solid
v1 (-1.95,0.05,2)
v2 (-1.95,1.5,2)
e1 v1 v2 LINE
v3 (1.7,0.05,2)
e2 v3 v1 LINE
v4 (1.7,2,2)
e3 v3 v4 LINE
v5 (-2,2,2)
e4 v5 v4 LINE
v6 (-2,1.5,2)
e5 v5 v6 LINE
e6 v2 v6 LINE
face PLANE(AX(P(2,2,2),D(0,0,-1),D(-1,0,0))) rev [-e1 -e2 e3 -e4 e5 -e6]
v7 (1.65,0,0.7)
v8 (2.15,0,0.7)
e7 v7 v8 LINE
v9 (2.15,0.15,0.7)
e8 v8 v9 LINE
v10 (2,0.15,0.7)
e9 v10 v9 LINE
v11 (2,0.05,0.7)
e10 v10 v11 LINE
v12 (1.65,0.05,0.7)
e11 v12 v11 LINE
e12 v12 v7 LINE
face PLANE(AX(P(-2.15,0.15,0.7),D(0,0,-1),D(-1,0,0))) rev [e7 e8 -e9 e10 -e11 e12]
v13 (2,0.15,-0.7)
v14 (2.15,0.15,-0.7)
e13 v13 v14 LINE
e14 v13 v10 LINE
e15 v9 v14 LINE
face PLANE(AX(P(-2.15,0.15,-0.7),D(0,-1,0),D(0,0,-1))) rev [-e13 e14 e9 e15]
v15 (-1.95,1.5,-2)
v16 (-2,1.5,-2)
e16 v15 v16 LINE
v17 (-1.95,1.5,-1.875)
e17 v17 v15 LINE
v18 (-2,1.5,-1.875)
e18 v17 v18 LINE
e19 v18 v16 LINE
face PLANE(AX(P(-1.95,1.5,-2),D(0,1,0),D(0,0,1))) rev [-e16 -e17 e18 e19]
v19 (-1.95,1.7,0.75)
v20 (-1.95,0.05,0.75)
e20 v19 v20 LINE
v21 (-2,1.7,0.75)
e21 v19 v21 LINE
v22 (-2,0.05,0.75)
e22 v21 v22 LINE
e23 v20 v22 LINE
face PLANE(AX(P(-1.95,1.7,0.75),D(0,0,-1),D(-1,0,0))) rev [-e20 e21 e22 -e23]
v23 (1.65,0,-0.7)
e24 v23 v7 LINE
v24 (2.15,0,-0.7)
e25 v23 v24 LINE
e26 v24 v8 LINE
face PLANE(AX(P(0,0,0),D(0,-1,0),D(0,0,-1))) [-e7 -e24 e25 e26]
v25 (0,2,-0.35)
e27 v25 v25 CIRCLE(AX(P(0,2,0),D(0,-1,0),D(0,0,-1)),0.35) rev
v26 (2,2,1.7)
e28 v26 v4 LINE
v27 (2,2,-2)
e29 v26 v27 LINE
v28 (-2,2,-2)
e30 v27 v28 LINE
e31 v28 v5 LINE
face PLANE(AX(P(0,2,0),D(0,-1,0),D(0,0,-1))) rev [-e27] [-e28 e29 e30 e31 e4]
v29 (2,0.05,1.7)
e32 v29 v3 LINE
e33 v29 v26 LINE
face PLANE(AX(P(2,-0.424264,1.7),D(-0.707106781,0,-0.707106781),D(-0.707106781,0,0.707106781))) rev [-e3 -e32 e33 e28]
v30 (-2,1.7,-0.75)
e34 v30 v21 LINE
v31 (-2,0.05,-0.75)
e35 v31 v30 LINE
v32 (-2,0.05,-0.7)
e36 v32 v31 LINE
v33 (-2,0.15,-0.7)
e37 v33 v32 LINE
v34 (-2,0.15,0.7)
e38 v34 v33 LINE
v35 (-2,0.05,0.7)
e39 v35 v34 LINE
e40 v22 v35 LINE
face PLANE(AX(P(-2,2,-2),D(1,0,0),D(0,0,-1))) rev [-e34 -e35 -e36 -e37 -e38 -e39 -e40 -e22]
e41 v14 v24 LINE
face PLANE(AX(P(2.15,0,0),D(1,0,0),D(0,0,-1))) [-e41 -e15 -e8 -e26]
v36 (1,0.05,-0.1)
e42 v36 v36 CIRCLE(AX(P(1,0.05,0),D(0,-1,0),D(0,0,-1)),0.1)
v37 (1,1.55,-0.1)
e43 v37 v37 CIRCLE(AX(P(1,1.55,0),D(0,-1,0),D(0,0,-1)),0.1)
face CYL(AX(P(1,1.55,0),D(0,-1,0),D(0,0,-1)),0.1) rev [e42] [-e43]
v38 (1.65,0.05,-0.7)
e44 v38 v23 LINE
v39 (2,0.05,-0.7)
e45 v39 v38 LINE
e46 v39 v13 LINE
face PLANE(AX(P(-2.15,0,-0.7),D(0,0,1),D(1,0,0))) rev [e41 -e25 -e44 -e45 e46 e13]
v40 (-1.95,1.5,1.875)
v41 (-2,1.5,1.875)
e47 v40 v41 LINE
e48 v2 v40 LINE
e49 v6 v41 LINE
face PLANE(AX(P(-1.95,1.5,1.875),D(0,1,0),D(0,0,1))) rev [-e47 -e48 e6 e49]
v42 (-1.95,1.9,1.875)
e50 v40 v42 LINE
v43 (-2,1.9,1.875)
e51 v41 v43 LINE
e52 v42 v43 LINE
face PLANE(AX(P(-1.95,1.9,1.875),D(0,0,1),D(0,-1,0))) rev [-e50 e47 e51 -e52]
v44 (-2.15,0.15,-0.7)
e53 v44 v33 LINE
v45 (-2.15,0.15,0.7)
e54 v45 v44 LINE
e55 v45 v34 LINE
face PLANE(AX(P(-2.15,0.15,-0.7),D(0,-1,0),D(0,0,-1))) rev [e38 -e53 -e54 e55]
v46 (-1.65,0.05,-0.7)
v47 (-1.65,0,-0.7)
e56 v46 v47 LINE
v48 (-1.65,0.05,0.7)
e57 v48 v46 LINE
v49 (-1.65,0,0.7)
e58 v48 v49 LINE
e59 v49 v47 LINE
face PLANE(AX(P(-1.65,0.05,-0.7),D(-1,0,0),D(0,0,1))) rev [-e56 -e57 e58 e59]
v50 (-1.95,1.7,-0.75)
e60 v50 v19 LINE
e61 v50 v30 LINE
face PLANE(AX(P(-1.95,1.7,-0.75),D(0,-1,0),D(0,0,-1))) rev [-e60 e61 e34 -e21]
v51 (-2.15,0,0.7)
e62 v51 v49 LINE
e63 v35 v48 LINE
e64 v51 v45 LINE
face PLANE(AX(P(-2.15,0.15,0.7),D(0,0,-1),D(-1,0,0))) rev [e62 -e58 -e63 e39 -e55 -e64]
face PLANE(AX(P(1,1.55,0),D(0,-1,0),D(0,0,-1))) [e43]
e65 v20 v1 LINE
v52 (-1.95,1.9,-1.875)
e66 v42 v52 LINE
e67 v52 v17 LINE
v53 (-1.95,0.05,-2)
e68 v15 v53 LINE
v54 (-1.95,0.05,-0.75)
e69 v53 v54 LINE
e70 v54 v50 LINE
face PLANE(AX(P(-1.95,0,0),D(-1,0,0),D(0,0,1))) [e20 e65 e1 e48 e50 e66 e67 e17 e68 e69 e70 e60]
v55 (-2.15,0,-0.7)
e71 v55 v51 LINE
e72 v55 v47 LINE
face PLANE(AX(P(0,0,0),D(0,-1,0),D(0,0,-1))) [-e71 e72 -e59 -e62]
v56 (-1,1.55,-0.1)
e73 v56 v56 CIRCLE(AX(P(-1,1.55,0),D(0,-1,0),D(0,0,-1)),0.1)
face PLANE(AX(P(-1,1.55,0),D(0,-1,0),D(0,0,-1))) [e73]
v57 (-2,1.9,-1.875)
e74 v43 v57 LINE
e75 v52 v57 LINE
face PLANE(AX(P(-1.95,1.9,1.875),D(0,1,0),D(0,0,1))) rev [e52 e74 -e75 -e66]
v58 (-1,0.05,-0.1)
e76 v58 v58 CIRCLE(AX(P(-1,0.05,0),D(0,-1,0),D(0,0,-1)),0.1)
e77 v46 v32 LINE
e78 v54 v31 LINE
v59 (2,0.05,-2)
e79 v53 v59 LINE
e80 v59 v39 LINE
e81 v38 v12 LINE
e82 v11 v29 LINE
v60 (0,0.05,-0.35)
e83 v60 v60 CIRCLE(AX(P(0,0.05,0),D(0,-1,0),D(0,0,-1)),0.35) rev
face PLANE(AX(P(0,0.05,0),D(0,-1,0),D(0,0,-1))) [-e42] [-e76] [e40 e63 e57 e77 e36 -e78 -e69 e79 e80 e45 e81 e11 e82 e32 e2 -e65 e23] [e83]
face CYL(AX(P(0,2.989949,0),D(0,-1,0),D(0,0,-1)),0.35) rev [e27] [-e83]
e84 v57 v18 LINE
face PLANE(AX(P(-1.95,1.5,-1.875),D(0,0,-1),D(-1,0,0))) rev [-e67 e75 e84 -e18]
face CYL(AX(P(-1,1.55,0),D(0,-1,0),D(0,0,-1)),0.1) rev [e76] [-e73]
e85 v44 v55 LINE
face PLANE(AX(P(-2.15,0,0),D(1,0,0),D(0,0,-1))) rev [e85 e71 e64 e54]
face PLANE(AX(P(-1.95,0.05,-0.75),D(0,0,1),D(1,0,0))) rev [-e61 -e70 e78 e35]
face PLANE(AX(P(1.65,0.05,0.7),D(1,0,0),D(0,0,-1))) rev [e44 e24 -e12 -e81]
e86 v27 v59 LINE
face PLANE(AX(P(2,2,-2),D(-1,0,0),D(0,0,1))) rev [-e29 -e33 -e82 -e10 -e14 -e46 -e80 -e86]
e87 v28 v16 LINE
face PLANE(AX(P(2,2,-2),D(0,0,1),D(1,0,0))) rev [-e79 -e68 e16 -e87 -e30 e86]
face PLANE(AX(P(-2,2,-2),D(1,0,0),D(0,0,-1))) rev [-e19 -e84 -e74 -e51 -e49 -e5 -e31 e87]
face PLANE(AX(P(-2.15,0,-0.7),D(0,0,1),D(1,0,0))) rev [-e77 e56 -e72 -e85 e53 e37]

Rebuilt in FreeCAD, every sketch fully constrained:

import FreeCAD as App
import Part
import Sketcher
from FreeCAD import Vector
Q = App.Units.Quantity

doc = App.newDocument("Part")
body = doc.addObject("PartDesign::Body", "Body")

sketch1 = doc.addObject("Sketcher::SketchObject", "Sketch")
body.addObject(sketch1)
sketch1.AttachmentSupport = (doc.XZ_Plane, [""])
sketch1.MapMode = "FlatFace"
sketch1.addGeometry([
    Part.LineSegment(Vector(-2, -2, 0), Vector(-2, 2, 0)),
    Part.LineSegment(Vector(-2, 2, 0), Vector(2, 2, 0)),
    Part.LineSegment(Vector(2, 2, 0), Vector(2, -2, 0)),
    Part.LineSegment(Vector(2, -2, 0), Vector(-2, -2, 0)),
], False)
sketch1.addConstraint([
    Sketcher.Constraint("Coincident", 0, 2, 1, 1),
    Sketcher.Constraint("Coincident", 1, 2, 2, 1),
    Sketcher.Constraint("Coincident", 2, 2, 3, 1),
    Sketcher.Constraint("Coincident", 3, 2, 0, 1),
    Sketcher.Constraint("Vertical", 0),
    Sketcher.Constraint("Horizontal", 1),
    Sketcher.Constraint("Vertical", 2),
    Sketcher.Constraint("Horizontal", 3),
    Sketcher.Constraint("Symmetric", 0, 2, 2, 2, -1, 1),
    Sketcher.Constraint("Equal", 3, 0),
    Sketcher.Constraint("DistanceX", 1, 1, 1, 2, 4.0),
])
pad1 = doc.addObject("PartDesign::Pad", "Pad")
body.addObject(pad1)
pad1.Profile = sketch1
pad1.Length = 2
pad1.Reversed = True

sketch2 = doc.addObject("Sketcher::SketchObject", "Sketch001")
body.addObject(sketch2)
sketch2.AttachmentSupport = (doc.XZ_Plane, [""])
sketch2.MapMode = "FlatFace"
sketch2.AttachmentOffset = App.Placement(Vector(0, 0, -2), App.Rotation())
sketch2.addGeometry([
    Part.LineSegment(Vector(2, 1.7, 0), Vector(1.7, 2, 0)),
    Part.LineSegment(Vector(1.7, 2, 0), Vector(2, 2, 0)),
    Part.LineSegment(Vector(2, 2, 0), Vector(2, 1.7, 0)),
], False)
sketch2.addConstraint([
    Sketcher.Constraint("Coincident", 0, 2, 1, 1),
    Sketcher.Constraint("Coincident", 1, 2, 2, 1),
    Sketcher.Constraint("Coincident", 2, 2, 0, 1),
    Sketcher.Constraint("Horizontal", 1),
    Sketcher.Constraint("Vertical", 2),
    Sketcher.Constraint("Equal", 1, 2),
    Sketcher.Constraint("DistanceX", 1, 1, 1, 2, 0.3),
    Sketcher.Constraint("DistanceY", -1, 1, 0, 2, 2.0),
    Sketcher.Constraint("DistanceX", -1, 1, 1, 2, 2.0),
])
pocket1 = doc.addObject("PartDesign::Pocket", "Pocket")
body.addObject(pocket1)
pocket1.Profile = sketch2
pocket1.Length = 2
pocket1.Reversed = True

sketch3 = doc.addObject("Sketcher::SketchObject", "Sketch002")
body.addObject(sketch3)
sketch3.AttachmentSupport = (doc.YZ_Plane, [""])
sketch3.MapMode = "FlatFace"
sketch3.addGeometry([
    Part.LineSegment(Vector(0.15, -0.7, 0), Vector(0, -0.7, 0)),
    Part.LineSegment(Vector(0, -0.7, 0), Vector(0, 0.7, 0)),
    Part.LineSegment(Vector(0, 0.7, 0), Vector(0.15, 0.7, 0)),
    Part.LineSegment(Vector(0.15, 0.7, 0), Vector(0.15, -0.7, 0)),
], False)
sketch3.addConstraint([
    Sketcher.Constraint("Coincident", 0, 2, 1, 1),
    Sketcher.Constraint("Coincident", 1, 2, 2, 1),
    Sketcher.Constraint("Coincident", 2, 2, 3, 1),
    Sketcher.Constraint("Coincident", 3, 2, 0, 1),
    Sketcher.Constraint("Horizontal", 0),
    Sketcher.Constraint("Vertical", 1),
    Sketcher.Constraint("Horizontal", 2),
    Sketcher.Constraint("Vertical", 3),
    Sketcher.Constraint("Symmetric", 0, 2, 1, 2, -1, 1),
    Sketcher.Constraint("DistanceY", 1, 1, 1, 2, 1.4),
    Sketcher.Constraint("DistanceX", 0, 2, 0, 1, 0.15),
])
pad2 = doc.addObject("PartDesign::Pad", "Pad001")
body.addObject(pad2)
pad2.Profile = sketch3
pad2.Length = 4.3
pad2.Midplane = True

sketch4 = doc.addObject("Sketcher::SketchObject", "Sketch003")
body.addObject(sketch4)
sketch4.AttachmentSupport = (doc.XZ_Plane, [""])
sketch4.MapMode = "FlatFace"
sketch4.addGeometry(Part.Circle(Vector(0, 0, 0), Vector(0, 0, 1), 0.35), False)
sketch4.addConstraint([
    Sketcher.Constraint("Coincident", 0, 3, -1, 1),
    Sketcher.Constraint("Diameter", 0, 0.7),
])
pocket2 = doc.addObject("PartDesign::Pocket", "Pocket001")
body.addObject(pocket2)
pocket2.Profile = sketch4
pocket2.Length = 2

sketch5 = doc.addObject("Sketcher::SketchObject", "Sketch004")
body.addObject(sketch5)
sketch5.AttachmentSupport = (doc.XZ_Plane, [""])
sketch5.MapMode = "FlatFace"
sketch5.addGeometry([
    Part.LineSegment(Vector(1.65, 0.7, 0), Vector(2, 0.7, 0)),
    Part.LineSegment(Vector(2, 0.7, 0), Vector(2, 1.7, 0)),
    Part.LineSegment(Vector(2, 1.7, 0), Vector(1.7, 2, 0)),
    Part.LineSegment(Vector(1.7, 2, 0), Vector(-2, 2, 0)),
    Part.LineSegment(Vector(-2, 2, 0), Vector(-2, 0.7, 0)),
    Part.LineSegment(Vector(-2, 0.7, 0), Vector(-1.65, 0.7, 0)),
    Part.LineSegment(Vector(-1.65, 0.7, 0), Vector(-1.65, -0.7, 0)),
    Part.LineSegment(Vector(-1.65, -0.7, 0), Vector(-2, -0.7, 0)),
    Part.LineSegment(Vector(-2, -0.7, 0), Vector(-2, -2, 0)),
    Part.LineSegment(Vector(-2, -2, 0), Vector(2, -2, 0)),
    Part.LineSegment(Vector(2, -2, 0), Vector(2, -0.7, 0)),
    Part.LineSegment(Vector(2, -0.7, 0), Vector(1.65, -0.7, 0)),
    Part.LineSegment(Vector(1.65, -0.7, 0), Vector(1.65, 0.7, 0)),
], False)
sketch5.addConstraint([
    Sketcher.Constraint("Coincident", 0, 2, 1, 1),
    Sketcher.Constraint("Coincident", 1, 2, 2, 1),
    Sketcher.Constraint("Coincident", 2, 2, 3, 1),
    Sketcher.Constraint("Coincident", 3, 2, 4, 1),
    Sketcher.Constraint("Coincident", 4, 2, 5, 1),
    Sketcher.Constraint("Coincident", 5, 2, 6, 1),
    Sketcher.Constraint("Coincident", 6, 2, 7, 1),
    Sketcher.Constraint("Coincident", 7, 2, 8, 1),
    Sketcher.Constraint("Coincident", 8, 2, 9, 1),
    Sketcher.Constraint("Coincident", 9, 2, 10, 1),
    Sketcher.Constraint("Coincident", 10, 2, 11, 1),
    Sketcher.Constraint("Coincident", 11, 2, 12, 1),
    Sketcher.Constraint("Coincident", 12, 2, 0, 1),
    Sketcher.Constraint("Horizontal", 0),
    Sketcher.Constraint("Vertical", 1),
    Sketcher.Constraint("Horizontal", 3),
    Sketcher.Constraint("Vertical", 4),
    Sketcher.Constraint("Horizontal", 5),
    Sketcher.Constraint("Vertical", 6),
    Sketcher.Constraint("Horizontal", 7),
    Sketcher.Constraint("Vertical", 8),
    Sketcher.Constraint("Horizontal", 9),
    Sketcher.Constraint("Vertical", 10),
    Sketcher.Constraint("Horizontal", 11),
    Sketcher.Constraint("Vertical", 12),
    Sketcher.Constraint("Symmetric", 0, 2, 7, 2, -1, 1),
    Sketcher.Constraint("Symmetric", 3, 2, 9, 2, -1, 1),
    Sketcher.Constraint("Symmetric", 5, 2, 11, 2, -1, 1),
    Sketcher.Constraint("Symmetric", 0, 2, 4, 2, -2),
    Sketcher.Constraint("DistanceX", 9, 1, 9, 2, 4.0),
    Sketcher.Constraint("DistanceY", 1, 1, 1, 2, 1.0),
    Sketcher.Constraint("Angle", 2, Q("135 deg")),
    Sketcher.Constraint("DistanceX", 3, 2, 3, 1, 3.7),
    Sketcher.Constraint("DistanceY", 6, 2, 6, 1, 1.4),
    Sketcher.Constraint("DistanceX", 0, 1, 0, 2, 0.35),
])
pocket3 = doc.addObject("PartDesign::Pocket", "Pocket002")
body.addObject(pocket3)
pocket3.Profile = sketch5
pocket3.Length = 0.05

sketch6 = doc.addObject("Sketcher::SketchObject", "Sketch005")
body.addObject(sketch6)
sketch6.AttachmentSupport = (doc.XZ_Plane, [""])
sketch6.MapMode = "FlatFace"
sketch6.AttachmentOffset = App.Placement(Vector(0, 0, -0.05), App.Rotation())
sketch6.addGeometry([
    Part.Circle(Vector(-1, 0, 0), Vector(0, 0, 1), 0.1),
    Part.Circle(Vector(1, 0, 0), Vector(0, 0, 1), 0.1),
], False)
sketch6.addConstraint([
    Sketcher.Constraint("Equal", 0, 1),
    Sketcher.Constraint("Symmetric", 0, 3, 1, 3, -1, 1),
    Sketcher.Constraint("PointOnObject", 0, 3, -1),
    Sketcher.Constraint("Diameter", 0, 0.2),
    Sketcher.Constraint("DistanceX", 0, 3, -1, 1, 1.0),
])
pocket4 = doc.addObject("PartDesign::Pocket", "Pocket003")
body.addObject(pocket4)
pocket4.Profile = sketch6
pocket4.Length = 1.5

sketch7 = doc.addObject("Sketcher::SketchObject", "Sketch006")
body.addObject(sketch7)
sketch7.AttachmentSupport = (doc.YZ_Plane, [""])
sketch7.MapMode = "FlatFace"
sketch7.AttachmentOffset = App.Placement(Vector(0, 0, -2), App.Rotation())
sketch7.addGeometry([
    Part.LineSegment(Vector(1.5, -1.875, 0), Vector(1.5, -2, 0)),
    Part.LineSegment(Vector(1.5, -2, 0), Vector(0.05, -2, 0)),
    Part.LineSegment(Vector(0.05, -2, 0), Vector(0.05, -0.75, 0)),
    Part.LineSegment(Vector(0.05, -0.75, 0), Vector(1.7, -0.75, 0)),
    Part.LineSegment(Vector(1.7, -0.75, 0), Vector(1.7, 0.75, 0)),
    Part.LineSegment(Vector(1.7, 0.75, 0), Vector(0.05, 0.75, 0)),
    Part.LineSegment(Vector(0.05, 0.75, 0), Vector(0.05, 2, 0)),
    Part.LineSegment(Vector(0.05, 2, 0), Vector(1.5, 2, 0)),
    Part.LineSegment(Vector(1.5, 2, 0), Vector(1.5, 1.875, 0)),
    Part.LineSegment(Vector(1.5, 1.875, 0), Vector(1.9, 1.875, 0)),
    Part.LineSegment(Vector(1.9, 1.875, 0), Vector(1.9, -1.875, 0)),
    Part.LineSegment(Vector(1.9, -1.875, 0), Vector(1.5, -1.875, 0)),
], False)
sketch7.addConstraint([
    Sketcher.Constraint("Coincident", 0, 2, 1, 1),
    Sketcher.Constraint("Coincident", 1, 2, 2, 1),
    Sketcher.Constraint("Coincident", 2, 2, 3, 1),
    Sketcher.Constraint("Coincident", 3, 2, 4, 1),
    Sketcher.Constraint("Coincident", 4, 2, 5, 1),
    Sketcher.Constraint("Coincident", 5, 2, 6, 1),
    Sketcher.Constraint("Coincident", 6, 2, 7, 1),
    Sketcher.Constraint("Coincident", 7, 2, 8, 1),
    Sketcher.Constraint("Coincident", 8, 2, 9, 1),
    Sketcher.Constraint("Coincident", 9, 2, 10, 1),
    Sketcher.Constraint("Coincident", 10, 2, 11, 1),
    Sketcher.Constraint("Coincident", 11, 2, 0, 1),
    Sketcher.Constraint("Vertical", 0),
    Sketcher.Constraint("Horizontal", 1),
    Sketcher.Constraint("Vertical", 2),
    Sketcher.Constraint("Horizontal", 3),
    Sketcher.Constraint("Vertical", 4),
    Sketcher.Constraint("Horizontal", 5),
    Sketcher.Constraint("Vertical", 6),
    Sketcher.Constraint("Horizontal", 7),
    Sketcher.Constraint("Vertical", 8),
    Sketcher.Constraint("Horizontal", 9),
    Sketcher.Constraint("Vertical", 10),
    Sketcher.Constraint("Horizontal", 11),
    Sketcher.Constraint("Symmetric", 2, 2, 5, 2, -1),
    Sketcher.Constraint("Symmetric", 0, 2, 7, 2, -1),
    Sketcher.Constraint("Equal", 0, 8),
    Sketcher.Constraint("DistanceX", 9, 1, 9, 2, 0.4),
    Sketcher.Constraint("DistanceY", 4, 1, 4, 2, 1.5),
    Sketcher.Constraint("DistanceY", 0, 2, -1, 1, 2.0),
    Sketcher.Constraint("DistanceX", 1, 2, 1, 1, 1.45),
    Sketcher.Constraint("DistanceX", 3, 1, 3, 2, 1.65),
    Sketcher.Constraint("DistanceY", 10, 2, 10, 1, 3.75),
    Sketcher.Constraint("DistanceX", -1, 1, 0, 2, 1.5),
])
pocket5 = doc.addObject("PartDesign::Pocket", "Pocket004")
body.addObject(pocket5)
pocket5.Profile = sketch7
pocket5.Length = 0.05
pocket5.Reversed = True

doc.recompute()
